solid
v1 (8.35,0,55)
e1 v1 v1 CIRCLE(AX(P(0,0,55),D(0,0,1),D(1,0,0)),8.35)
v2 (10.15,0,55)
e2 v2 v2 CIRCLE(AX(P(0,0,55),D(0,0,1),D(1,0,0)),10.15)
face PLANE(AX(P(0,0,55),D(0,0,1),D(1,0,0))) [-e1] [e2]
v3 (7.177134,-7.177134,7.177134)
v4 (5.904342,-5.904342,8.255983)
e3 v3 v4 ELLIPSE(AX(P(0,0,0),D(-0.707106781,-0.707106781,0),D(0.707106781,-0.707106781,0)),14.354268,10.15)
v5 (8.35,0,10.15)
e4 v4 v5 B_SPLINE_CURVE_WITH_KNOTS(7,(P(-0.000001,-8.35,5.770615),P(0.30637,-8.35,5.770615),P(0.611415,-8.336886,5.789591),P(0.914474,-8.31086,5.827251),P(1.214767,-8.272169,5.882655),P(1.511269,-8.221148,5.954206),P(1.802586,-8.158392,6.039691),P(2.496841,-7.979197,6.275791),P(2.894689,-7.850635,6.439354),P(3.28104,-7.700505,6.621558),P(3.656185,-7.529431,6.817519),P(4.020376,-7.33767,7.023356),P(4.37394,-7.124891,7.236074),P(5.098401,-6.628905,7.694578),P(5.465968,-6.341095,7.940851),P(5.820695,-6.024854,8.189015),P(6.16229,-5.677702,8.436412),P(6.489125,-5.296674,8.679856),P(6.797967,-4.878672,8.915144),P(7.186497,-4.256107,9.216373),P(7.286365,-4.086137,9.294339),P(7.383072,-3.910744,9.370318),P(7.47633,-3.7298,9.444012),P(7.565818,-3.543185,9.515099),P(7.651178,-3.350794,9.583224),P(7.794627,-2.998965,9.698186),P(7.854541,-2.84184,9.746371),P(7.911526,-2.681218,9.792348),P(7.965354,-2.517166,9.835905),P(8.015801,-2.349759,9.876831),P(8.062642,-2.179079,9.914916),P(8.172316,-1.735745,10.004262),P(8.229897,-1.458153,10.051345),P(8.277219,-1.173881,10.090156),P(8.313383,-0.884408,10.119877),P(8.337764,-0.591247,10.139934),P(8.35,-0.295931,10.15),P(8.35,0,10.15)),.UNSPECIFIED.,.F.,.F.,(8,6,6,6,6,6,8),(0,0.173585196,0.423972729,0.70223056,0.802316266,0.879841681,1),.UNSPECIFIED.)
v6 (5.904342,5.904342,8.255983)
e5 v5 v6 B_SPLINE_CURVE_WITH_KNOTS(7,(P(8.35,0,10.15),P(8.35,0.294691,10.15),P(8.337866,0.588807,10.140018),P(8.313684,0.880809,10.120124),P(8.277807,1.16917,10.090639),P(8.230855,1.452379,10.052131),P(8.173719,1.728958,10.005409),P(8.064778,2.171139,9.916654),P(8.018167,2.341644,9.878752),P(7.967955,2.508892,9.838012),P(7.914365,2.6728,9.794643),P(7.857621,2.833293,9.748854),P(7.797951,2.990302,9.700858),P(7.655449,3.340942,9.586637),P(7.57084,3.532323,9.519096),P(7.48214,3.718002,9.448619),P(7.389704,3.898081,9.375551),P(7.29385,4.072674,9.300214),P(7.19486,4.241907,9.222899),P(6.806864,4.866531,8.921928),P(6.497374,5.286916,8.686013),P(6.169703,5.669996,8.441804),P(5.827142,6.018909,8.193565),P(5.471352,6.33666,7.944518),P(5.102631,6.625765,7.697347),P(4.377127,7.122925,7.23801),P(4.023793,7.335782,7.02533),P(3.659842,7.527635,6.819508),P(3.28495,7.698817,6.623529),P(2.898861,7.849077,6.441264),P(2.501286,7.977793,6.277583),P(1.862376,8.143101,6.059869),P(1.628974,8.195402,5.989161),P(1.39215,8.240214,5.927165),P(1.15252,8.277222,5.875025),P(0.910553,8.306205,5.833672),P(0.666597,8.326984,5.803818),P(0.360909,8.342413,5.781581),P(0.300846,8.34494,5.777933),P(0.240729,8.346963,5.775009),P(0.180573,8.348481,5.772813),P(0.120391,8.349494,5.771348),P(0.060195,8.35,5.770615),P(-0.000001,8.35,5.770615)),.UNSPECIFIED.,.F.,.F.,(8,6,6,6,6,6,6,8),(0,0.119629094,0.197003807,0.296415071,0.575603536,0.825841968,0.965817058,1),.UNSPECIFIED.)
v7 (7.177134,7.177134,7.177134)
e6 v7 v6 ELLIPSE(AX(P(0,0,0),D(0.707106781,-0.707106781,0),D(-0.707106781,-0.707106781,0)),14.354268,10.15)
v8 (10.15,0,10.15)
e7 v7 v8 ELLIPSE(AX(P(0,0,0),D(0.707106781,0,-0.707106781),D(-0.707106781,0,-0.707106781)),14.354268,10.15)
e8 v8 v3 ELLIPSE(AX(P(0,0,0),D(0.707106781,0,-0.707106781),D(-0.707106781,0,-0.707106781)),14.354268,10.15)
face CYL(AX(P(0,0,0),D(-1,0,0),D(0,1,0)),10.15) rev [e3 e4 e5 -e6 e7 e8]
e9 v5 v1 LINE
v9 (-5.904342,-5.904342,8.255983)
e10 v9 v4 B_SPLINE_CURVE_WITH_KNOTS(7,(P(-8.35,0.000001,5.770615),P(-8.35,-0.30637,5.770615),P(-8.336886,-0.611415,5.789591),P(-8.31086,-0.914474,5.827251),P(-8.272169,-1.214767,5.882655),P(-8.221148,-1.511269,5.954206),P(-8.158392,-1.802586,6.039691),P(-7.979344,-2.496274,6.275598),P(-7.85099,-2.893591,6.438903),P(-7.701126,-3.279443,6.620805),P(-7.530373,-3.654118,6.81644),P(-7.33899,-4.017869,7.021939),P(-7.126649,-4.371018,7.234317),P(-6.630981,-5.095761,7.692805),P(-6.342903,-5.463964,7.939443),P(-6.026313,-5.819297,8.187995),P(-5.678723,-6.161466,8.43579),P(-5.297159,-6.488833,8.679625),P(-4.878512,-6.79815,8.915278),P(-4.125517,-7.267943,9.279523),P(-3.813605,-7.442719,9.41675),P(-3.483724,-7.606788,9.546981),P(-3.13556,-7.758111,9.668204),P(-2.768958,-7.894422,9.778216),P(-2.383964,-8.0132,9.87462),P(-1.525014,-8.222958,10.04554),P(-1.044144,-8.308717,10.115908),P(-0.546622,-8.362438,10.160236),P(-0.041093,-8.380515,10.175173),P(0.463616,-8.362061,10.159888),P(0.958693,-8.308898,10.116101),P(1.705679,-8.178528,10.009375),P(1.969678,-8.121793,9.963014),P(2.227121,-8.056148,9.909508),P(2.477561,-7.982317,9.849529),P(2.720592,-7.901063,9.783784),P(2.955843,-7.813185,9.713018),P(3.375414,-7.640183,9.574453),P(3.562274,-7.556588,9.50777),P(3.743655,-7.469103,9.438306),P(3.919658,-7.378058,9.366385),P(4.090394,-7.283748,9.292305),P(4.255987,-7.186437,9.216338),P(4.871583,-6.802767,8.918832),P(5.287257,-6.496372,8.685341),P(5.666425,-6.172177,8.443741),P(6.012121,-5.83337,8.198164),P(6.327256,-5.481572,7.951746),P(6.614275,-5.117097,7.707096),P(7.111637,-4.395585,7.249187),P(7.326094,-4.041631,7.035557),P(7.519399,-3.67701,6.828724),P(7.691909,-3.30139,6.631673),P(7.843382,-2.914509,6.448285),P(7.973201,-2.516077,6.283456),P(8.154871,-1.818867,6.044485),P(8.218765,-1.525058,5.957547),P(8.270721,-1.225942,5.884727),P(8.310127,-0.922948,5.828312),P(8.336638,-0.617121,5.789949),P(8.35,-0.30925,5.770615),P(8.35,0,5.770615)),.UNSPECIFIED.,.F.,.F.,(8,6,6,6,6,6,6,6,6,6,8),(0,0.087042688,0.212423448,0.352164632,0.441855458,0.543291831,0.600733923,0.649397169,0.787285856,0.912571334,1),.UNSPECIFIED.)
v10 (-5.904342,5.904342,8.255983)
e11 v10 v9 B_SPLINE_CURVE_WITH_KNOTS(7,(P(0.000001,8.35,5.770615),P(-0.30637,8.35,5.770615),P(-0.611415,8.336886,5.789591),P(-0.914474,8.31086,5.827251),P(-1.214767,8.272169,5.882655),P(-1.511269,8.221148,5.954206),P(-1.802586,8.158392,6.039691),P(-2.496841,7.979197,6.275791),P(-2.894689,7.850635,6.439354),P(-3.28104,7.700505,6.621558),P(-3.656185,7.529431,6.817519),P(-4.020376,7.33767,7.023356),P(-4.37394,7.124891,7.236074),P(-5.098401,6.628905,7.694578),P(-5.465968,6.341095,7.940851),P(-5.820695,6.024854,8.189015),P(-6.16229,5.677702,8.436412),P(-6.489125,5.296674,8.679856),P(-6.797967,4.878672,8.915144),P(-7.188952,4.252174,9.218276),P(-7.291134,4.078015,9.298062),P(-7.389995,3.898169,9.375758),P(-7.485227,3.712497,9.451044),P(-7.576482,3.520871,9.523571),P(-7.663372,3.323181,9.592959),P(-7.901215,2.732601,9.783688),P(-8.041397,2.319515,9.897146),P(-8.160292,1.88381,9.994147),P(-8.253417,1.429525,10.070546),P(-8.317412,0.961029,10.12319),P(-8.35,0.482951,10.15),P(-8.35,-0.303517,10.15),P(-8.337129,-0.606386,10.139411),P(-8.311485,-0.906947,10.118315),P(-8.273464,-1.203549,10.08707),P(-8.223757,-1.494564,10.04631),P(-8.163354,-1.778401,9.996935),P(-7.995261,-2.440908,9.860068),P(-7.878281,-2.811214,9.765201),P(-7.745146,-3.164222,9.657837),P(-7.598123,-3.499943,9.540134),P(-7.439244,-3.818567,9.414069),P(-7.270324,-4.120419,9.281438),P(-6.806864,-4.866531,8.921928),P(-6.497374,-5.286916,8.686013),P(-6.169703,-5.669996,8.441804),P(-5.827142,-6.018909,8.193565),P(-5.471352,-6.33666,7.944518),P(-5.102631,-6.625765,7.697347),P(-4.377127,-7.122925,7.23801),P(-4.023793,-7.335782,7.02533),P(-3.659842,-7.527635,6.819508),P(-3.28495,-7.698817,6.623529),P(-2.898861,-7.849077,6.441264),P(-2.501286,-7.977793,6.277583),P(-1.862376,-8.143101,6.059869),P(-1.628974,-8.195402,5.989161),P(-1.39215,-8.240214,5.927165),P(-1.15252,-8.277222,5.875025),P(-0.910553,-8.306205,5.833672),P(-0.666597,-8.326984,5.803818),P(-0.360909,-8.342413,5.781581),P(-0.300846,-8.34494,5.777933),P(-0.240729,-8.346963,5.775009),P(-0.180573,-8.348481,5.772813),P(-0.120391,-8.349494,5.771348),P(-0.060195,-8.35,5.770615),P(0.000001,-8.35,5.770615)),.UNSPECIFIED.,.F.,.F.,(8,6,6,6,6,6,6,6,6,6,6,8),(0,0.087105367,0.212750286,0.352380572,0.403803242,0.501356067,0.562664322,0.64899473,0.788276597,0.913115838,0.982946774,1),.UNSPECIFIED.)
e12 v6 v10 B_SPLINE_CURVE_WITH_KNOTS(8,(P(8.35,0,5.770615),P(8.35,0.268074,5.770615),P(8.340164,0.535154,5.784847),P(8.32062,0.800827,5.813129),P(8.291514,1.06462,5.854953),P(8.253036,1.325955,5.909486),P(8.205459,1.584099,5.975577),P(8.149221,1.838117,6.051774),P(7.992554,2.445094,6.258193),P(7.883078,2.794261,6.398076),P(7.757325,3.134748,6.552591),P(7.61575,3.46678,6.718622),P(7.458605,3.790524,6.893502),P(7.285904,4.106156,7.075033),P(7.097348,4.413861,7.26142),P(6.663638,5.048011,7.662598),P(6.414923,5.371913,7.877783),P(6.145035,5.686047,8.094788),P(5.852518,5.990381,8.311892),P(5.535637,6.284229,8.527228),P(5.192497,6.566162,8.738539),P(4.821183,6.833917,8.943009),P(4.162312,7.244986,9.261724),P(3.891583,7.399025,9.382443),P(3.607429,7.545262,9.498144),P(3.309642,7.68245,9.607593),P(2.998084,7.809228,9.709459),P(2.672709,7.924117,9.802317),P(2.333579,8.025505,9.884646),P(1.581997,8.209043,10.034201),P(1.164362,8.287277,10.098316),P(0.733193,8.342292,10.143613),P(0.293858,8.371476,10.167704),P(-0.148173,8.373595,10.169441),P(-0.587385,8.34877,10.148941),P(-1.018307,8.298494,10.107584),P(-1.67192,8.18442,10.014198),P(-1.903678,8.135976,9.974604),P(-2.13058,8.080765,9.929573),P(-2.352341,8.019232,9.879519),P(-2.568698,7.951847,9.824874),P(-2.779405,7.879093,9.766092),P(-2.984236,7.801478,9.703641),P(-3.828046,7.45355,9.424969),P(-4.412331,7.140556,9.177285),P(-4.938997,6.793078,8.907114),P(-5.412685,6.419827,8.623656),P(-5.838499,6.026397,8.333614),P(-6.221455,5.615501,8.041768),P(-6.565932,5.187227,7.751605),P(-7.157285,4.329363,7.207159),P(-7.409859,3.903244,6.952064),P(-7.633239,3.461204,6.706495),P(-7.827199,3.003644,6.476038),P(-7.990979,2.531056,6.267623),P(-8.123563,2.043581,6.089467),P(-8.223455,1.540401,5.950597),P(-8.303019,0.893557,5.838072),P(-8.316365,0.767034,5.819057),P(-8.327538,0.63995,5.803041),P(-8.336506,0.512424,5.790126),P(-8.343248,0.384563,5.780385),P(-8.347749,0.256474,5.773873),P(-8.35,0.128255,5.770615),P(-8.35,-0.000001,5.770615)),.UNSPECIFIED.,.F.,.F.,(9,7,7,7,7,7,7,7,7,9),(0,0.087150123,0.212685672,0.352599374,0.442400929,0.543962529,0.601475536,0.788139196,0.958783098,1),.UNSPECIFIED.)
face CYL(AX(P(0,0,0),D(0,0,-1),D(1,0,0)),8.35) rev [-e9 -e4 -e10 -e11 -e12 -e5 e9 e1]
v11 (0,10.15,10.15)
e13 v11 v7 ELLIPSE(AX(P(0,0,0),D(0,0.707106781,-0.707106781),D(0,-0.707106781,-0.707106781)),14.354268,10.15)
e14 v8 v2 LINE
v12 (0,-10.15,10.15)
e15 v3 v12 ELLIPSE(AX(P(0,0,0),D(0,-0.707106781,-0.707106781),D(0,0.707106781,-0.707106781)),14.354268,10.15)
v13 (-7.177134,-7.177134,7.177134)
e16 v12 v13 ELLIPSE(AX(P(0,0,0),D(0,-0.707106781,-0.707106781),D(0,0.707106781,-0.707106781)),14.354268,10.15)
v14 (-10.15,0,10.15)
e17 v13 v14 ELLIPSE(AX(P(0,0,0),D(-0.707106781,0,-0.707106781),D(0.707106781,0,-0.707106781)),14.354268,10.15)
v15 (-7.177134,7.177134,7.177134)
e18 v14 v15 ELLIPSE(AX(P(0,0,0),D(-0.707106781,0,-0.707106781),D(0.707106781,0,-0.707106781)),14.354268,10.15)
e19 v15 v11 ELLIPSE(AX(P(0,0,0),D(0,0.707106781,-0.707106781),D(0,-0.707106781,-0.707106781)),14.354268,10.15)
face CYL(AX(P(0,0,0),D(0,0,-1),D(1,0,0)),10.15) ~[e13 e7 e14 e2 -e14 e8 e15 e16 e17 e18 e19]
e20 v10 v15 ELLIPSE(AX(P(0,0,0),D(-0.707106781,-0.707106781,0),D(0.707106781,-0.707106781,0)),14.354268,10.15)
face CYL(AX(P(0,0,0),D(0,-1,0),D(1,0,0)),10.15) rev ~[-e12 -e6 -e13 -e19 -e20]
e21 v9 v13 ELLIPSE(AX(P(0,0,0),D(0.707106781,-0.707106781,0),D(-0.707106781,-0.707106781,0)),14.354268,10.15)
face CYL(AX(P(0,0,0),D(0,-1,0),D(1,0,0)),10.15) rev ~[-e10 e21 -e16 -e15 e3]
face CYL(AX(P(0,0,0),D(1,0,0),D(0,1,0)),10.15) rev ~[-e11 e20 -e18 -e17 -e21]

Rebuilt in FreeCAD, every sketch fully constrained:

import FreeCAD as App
import Part
import Sketcher
Q = App.Units.Quantity

doc = App.newDocument("Part")
params = doc.addObject("Spreadsheet::Sheet", "Params")
for row, (alias, value) in enumerate([
    ("sketch1_diameter", "20.3 mm"),
    ("sketch1_diameter2", "16.7 mm"),
    ("pad1_length", "55 mm"),
    ("sketch2_diameter", "20.3 mm"),
    ("sketch3_diameter", "20.3 mm"),
], start=1):
    params.set(f"A{row}", alias)
    params.set(f"B{row}", "=" + value)
    params.setAlias(f"B{row}", alias)

body = doc.addObject("PartDesign::Body", "Body")

# Sketch on XY plane
sketch1 = body.newObject("Sketcher::SketchObject", "Sketch")
sketch1.AttachmentSupport = (doc.getObject("XY_Plane"), [""])
sketch1.MapMode = "FlatFace"
sketch1.addGeometry([
    Part.Circle(App.Vector(0, 0, 0), App.Vector(0, 0, 1), 10.15),
    Part.Circle(App.Vector(0, 0, 0), App.Vector(0, 0, 1), 8.35),
], False)
sketch1.addConstraint([
    Sketcher.Constraint("Coincident", 0, 3, -1, 1),
    Sketcher.Constraint("Coincident", 1, 3, -1, 1),
    Sketcher.Constraint("Diameter", 0, Q("20.3 mm")),
    Sketcher.Constraint("Diameter", 1, Q("16.7 mm")),
])
sketch1.setExpression("Constraints[2]", "Params.sketch1_diameter")
sketch1.setExpression("Constraints[3]", "Params.sketch1_diameter2")
pad1 = body.newObject("PartDesign::Pad", "Pad")
pad1.Profile = sketch1
pad1.setExpression("Length", "Params.pad1_length")

# Sketch on XZ plane
sketch2 = body.newObject("Sketcher::SketchObject", "Sketch001")
sketch2.AttachmentSupport = (doc.getObject("XZ_Plane"), [""])
sketch2.MapMode = "FlatFace"
sketch2.addGeometry(Part.Circle(App.Vector(0, 0, 0), App.Vector(0, 0, 1), 10.15), False)
sketch2.addConstraint([
    Sketcher.Constraint("Coincident", 0, 3, -1, 1),
    Sketcher.Constraint("Diameter", 0, Q("20.3 mm")),
])
sketch2.setExpression("Constraints[1]", "Params.sketch2_diameter")
pocket1 = body.newObject("PartDesign::Pocket", "Pocket")
pocket1.Profile = sketch2
pocket1.Type = "ThroughAll"
pocket1.Midplane = True

# Sketch on YZ plane
sketch3 = body.newObject("Sketcher::SketchObject", "Sketch002")
sketch3.AttachmentSupport = (doc.getObject("YZ_Plane"), [""])
sketch3.MapMode = "FlatFace"
sketch3.addGeometry(Part.Circle(App.Vector(0, 0, 0), App.Vector(0, 0, 1), 10.15), False)
sketch3.addConstraint([
    Sketcher.Constraint("Coincident", 0, 3, -1, 1),
    Sketcher.Constraint("Diameter", 0, Q("20.3 mm")),
])
sketch3.setExpression("Constraints[1]", "Params.sketch3_diameter")
pocket2 = body.newObject("PartDesign::Pocket", "Pocket001")
pocket2.Profile = sketch3
pocket2.Type = "ThroughAll"
pocket2.Midplane = True

doc.recompute()
